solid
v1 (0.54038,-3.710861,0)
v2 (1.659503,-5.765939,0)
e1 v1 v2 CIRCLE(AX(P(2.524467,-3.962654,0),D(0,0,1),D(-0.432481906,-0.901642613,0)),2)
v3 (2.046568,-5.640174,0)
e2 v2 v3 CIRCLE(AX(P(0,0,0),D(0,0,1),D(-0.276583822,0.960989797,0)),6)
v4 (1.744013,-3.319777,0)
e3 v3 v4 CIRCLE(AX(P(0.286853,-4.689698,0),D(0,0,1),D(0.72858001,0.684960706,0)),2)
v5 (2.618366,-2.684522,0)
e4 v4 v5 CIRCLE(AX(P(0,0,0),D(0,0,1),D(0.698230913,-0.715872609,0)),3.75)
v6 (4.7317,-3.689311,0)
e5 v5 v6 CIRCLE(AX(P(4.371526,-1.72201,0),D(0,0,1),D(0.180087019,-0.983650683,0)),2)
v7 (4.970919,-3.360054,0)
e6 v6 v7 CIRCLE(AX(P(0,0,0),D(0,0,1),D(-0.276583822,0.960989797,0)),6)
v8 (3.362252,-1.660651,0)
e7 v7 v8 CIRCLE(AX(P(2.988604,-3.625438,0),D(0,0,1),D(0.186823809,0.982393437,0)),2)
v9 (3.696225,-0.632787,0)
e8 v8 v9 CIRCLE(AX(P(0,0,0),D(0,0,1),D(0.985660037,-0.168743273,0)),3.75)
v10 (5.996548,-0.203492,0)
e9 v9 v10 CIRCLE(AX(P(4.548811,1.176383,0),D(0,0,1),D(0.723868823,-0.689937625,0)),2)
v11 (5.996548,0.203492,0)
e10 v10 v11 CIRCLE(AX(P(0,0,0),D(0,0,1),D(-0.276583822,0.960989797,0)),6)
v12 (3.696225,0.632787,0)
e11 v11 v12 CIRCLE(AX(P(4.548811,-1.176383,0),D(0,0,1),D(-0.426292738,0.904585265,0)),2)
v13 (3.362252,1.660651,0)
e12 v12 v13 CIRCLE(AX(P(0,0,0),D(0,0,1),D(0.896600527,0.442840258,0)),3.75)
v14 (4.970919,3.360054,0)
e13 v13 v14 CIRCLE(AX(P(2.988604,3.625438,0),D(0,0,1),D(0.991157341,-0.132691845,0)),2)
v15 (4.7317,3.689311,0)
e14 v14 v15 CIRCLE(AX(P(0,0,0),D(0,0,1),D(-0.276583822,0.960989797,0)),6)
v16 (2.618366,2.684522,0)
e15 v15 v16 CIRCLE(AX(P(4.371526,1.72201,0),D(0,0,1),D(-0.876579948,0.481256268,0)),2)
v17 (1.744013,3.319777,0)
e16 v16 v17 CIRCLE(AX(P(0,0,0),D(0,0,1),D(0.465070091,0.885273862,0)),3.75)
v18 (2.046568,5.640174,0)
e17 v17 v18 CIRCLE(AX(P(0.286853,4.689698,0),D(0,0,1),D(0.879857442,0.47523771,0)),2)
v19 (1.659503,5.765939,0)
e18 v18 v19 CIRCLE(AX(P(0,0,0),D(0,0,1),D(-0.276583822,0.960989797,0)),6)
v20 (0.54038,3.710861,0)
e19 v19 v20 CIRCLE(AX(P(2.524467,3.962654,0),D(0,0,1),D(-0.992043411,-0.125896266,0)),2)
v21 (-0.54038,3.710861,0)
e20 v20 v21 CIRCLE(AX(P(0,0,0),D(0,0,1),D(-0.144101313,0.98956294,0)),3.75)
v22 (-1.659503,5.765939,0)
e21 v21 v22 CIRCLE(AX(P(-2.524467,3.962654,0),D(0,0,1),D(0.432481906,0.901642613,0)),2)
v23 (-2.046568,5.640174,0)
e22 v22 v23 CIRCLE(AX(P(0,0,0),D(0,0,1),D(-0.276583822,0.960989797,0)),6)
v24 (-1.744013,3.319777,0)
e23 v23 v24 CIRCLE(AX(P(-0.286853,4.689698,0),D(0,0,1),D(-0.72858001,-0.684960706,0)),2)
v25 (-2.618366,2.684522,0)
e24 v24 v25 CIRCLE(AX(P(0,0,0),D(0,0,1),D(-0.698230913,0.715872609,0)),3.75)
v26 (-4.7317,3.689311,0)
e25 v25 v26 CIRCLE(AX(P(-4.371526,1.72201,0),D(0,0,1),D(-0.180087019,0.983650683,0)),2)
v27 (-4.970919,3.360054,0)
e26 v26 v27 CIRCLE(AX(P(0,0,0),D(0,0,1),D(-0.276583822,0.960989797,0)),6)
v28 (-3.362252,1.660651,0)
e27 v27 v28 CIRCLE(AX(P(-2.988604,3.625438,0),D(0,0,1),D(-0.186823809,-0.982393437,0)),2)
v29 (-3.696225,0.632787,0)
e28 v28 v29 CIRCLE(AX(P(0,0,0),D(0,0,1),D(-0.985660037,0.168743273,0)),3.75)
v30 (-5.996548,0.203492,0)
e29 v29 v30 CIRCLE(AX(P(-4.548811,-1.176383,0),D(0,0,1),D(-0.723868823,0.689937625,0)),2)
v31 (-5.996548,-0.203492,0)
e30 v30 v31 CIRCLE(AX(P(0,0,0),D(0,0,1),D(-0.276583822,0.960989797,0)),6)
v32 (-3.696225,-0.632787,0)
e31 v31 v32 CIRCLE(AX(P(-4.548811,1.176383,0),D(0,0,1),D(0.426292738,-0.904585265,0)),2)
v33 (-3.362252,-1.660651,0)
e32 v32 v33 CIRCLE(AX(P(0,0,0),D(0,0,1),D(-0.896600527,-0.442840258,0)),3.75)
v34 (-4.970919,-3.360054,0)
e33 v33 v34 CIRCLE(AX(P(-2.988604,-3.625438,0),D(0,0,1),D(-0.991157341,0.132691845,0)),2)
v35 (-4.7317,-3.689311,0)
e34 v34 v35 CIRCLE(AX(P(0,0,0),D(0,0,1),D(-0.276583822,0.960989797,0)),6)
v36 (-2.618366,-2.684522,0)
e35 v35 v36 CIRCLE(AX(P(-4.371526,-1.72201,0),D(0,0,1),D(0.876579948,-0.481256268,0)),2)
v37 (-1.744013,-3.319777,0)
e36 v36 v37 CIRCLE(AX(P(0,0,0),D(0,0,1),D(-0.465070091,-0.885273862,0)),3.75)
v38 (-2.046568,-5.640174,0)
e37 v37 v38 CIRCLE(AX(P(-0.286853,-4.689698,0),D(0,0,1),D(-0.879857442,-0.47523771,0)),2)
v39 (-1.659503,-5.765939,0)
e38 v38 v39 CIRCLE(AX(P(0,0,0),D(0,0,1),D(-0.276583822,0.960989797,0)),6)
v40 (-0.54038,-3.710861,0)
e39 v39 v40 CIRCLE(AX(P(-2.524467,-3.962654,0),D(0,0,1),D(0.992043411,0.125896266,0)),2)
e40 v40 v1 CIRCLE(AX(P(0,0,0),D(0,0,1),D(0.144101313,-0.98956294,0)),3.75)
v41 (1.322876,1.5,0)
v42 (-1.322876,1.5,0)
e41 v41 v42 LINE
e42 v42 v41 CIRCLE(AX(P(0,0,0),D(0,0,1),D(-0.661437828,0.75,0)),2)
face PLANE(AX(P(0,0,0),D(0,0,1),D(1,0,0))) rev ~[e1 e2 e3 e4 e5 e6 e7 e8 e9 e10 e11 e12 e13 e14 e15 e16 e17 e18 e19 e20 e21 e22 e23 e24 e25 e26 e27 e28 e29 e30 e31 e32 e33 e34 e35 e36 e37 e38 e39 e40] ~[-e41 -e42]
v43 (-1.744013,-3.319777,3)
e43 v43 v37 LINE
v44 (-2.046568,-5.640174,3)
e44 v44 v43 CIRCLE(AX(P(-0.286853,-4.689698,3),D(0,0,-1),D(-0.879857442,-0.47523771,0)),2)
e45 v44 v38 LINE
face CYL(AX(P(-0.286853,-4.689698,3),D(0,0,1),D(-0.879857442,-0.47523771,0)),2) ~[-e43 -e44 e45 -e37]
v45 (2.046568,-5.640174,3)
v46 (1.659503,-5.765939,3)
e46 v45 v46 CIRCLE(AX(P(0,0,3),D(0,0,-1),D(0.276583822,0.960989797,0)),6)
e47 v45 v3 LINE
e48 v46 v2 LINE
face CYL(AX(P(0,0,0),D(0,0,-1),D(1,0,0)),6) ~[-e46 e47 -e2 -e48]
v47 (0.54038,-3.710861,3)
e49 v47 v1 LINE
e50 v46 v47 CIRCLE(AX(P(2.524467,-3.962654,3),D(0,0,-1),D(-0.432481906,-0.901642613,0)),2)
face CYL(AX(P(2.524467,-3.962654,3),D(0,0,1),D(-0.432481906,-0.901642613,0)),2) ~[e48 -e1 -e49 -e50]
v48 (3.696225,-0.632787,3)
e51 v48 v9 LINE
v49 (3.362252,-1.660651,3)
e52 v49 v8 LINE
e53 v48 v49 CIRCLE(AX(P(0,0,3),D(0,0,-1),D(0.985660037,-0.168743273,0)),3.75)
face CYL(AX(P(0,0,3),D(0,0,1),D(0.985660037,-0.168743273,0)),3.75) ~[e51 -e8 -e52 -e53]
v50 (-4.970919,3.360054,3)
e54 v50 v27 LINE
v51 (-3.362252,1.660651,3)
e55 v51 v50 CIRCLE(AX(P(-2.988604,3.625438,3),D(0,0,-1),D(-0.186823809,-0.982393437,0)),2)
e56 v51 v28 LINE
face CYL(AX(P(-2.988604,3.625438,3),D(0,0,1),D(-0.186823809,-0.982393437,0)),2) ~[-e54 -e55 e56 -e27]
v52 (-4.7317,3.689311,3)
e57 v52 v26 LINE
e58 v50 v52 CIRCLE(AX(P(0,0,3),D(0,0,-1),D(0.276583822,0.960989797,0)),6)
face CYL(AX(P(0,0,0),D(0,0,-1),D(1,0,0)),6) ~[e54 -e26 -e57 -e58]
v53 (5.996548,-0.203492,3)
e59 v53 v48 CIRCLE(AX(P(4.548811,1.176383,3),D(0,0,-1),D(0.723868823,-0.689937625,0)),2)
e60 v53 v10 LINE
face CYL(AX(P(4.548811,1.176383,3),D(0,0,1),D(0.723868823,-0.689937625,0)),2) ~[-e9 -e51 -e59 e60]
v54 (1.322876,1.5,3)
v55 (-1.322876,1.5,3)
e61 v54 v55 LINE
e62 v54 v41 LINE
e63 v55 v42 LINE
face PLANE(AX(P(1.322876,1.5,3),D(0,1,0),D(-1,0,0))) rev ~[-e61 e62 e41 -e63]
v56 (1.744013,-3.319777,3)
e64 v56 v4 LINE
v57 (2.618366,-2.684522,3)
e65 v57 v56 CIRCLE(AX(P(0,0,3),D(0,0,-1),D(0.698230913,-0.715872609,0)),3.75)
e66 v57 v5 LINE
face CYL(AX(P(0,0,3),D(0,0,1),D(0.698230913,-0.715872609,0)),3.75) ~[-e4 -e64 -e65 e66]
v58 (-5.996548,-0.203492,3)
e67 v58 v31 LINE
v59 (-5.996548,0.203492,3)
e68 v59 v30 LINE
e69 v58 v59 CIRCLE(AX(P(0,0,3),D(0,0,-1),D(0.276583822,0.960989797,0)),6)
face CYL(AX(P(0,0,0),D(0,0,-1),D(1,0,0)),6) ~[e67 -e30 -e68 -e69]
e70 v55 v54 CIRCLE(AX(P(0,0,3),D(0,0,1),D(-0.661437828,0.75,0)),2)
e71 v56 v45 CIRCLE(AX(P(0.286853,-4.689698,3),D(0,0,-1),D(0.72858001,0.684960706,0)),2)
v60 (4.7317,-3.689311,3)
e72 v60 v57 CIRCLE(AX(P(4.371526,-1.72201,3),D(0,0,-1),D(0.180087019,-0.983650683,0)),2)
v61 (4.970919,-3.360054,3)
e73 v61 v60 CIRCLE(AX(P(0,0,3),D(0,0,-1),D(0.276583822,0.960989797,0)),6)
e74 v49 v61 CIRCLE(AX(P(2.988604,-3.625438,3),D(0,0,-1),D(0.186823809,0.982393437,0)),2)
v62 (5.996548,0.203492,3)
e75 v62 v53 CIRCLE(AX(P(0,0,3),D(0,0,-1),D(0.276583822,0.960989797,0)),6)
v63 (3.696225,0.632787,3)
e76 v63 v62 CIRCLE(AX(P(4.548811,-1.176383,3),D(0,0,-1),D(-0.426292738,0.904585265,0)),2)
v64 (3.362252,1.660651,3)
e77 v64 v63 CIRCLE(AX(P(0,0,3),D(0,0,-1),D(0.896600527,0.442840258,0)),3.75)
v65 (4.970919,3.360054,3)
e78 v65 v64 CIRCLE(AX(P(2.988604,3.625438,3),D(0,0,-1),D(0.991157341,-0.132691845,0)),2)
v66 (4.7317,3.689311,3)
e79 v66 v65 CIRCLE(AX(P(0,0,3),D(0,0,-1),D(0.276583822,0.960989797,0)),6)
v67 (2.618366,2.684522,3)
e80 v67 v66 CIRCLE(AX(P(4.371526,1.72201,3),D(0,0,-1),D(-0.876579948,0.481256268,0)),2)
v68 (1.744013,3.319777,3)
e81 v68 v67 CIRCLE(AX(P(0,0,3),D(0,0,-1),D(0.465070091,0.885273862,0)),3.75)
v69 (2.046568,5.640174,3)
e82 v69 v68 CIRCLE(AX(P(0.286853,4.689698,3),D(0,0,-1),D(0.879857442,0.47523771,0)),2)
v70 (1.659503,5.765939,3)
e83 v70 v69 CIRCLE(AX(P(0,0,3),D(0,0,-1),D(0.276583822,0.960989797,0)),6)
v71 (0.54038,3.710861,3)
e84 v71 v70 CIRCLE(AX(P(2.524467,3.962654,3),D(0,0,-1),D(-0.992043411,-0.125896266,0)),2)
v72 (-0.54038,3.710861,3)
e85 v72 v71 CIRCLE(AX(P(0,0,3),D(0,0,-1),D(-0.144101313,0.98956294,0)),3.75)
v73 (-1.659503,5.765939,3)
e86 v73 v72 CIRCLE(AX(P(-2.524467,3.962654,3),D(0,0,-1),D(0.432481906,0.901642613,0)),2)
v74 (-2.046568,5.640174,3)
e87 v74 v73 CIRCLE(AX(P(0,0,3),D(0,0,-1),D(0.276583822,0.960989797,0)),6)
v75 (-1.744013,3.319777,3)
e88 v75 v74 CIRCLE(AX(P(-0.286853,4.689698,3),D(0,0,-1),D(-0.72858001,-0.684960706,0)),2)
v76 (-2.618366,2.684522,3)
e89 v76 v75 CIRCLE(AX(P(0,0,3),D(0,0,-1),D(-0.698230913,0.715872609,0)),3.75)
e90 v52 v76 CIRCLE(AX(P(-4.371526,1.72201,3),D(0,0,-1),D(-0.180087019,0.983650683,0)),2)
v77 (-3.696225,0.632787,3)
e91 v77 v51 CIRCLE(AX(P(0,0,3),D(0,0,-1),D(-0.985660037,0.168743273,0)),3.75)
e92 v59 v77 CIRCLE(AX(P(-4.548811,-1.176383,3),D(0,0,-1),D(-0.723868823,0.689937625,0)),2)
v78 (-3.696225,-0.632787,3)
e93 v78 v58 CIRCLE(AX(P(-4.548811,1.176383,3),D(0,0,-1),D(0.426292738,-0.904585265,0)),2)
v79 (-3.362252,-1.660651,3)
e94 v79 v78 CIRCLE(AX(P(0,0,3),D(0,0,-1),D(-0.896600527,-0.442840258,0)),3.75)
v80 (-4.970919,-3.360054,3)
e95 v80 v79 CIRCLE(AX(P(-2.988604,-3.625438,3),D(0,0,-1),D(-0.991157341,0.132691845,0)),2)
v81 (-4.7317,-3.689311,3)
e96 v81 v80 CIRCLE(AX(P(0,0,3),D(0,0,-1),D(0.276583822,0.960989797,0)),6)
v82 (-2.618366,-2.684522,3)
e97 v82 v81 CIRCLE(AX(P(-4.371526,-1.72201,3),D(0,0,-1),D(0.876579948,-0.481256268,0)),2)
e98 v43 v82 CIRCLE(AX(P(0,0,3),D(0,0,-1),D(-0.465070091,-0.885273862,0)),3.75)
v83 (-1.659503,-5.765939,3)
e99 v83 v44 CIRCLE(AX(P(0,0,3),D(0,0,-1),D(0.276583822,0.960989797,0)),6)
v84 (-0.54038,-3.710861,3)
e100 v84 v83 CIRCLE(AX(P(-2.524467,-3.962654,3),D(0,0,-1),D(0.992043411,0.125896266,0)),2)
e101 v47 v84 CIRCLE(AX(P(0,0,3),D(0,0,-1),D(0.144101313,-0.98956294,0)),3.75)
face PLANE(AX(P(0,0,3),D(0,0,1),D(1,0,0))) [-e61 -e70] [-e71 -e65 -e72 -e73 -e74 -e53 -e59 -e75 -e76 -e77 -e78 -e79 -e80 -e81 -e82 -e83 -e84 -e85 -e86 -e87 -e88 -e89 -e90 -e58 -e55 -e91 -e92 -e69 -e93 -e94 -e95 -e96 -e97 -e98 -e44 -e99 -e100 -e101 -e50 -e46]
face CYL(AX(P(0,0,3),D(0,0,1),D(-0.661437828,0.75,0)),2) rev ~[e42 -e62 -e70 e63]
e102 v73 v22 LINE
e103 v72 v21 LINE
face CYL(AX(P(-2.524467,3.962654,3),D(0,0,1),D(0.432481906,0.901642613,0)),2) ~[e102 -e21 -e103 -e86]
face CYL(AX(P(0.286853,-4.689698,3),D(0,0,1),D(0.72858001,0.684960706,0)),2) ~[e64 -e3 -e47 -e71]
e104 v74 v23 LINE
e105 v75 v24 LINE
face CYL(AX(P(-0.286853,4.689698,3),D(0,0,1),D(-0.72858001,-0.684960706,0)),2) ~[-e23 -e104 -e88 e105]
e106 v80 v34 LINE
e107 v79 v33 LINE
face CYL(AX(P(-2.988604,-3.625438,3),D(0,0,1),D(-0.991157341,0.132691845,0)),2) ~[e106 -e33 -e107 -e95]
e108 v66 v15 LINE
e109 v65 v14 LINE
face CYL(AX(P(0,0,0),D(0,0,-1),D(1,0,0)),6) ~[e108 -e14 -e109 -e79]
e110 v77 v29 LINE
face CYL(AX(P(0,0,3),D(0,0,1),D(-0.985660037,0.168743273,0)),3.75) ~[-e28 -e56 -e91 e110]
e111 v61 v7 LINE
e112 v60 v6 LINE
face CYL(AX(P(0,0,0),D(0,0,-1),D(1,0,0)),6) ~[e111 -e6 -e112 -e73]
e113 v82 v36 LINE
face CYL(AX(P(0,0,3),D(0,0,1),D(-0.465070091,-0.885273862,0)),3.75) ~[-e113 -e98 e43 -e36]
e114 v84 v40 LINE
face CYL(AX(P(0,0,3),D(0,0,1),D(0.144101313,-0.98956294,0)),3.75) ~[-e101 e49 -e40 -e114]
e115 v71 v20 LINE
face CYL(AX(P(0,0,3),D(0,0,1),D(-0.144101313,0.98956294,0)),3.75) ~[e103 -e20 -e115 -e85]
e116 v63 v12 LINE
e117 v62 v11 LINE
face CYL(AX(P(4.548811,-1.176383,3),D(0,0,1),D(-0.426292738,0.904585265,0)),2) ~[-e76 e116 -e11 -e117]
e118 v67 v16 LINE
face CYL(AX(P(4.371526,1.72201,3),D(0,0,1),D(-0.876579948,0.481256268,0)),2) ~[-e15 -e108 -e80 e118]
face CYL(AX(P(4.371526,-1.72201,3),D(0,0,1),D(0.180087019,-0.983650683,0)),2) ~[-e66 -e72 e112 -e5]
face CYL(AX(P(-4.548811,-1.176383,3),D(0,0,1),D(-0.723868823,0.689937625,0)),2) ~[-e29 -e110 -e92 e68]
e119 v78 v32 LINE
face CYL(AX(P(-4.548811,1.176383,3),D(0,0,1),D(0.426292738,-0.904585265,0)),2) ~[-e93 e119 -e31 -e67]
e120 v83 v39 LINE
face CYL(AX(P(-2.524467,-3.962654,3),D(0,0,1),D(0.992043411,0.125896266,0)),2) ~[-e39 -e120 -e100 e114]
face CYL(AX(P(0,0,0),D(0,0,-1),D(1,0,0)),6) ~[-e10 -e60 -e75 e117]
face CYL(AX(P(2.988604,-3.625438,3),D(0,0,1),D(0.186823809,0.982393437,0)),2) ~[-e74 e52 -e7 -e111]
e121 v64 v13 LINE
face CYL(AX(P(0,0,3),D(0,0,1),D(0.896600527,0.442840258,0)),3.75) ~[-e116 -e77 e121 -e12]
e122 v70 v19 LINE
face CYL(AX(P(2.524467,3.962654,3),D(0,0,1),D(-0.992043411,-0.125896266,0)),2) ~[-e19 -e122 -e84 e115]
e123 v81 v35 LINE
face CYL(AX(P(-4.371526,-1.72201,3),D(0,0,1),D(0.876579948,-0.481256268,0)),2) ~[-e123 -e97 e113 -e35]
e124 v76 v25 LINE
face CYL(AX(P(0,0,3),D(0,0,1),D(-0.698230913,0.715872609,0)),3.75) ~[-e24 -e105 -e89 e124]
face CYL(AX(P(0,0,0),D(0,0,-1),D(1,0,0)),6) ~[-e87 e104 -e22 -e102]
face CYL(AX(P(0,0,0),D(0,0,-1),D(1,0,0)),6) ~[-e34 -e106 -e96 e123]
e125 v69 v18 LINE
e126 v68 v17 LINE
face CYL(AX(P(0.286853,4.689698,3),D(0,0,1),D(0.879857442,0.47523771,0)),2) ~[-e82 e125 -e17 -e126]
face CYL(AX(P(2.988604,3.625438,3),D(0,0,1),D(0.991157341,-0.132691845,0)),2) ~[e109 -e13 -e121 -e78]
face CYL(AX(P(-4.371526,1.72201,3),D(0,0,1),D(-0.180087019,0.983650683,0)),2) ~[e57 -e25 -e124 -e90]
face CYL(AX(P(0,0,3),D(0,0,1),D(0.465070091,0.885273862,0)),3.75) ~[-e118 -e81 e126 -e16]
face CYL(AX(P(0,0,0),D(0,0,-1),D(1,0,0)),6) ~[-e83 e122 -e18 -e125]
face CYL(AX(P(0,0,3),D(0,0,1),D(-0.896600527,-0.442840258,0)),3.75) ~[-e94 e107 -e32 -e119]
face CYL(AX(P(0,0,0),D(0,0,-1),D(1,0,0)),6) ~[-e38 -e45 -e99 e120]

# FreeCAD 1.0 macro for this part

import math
import FreeCAD as App
import Part
import Sketcher
from FreeCAD import Vector
Q = App.Units.Quantity

doc = App.newDocument("Part")
body = doc.addObject("PartDesign::Body", "Body")

# Sketch on XY plane
sketch1 = doc.addObject("Sketcher::SketchObject", "Sketch")
body.addObject(sketch1)
sketch1.AttachmentSupport = (doc.XY_Plane, [""])
sketch1.MapMode = "FlatFace"
sketch1.addGeometry(Part.Circle(Vector(0, 0, 0), Vector(0, 0, 1), 6), False)
sketch1.addConstraint(Sketcher.Constraint("Coincident", 0, 3, -1, 1))
sketch1.addConstraint(Sketcher.Constraint("Diameter", 0, Q("12 mm")))
pad1 = doc.addObject("PartDesign::Pad", "Pad")
body.addObject(pad1)
pad1.Profile = sketch1
pad1.Length = 3

# Sketch on XY plane
sketch2 = doc.addObject("Sketcher::SketchObject", "Sketch001")
body.addObject(sketch2)
sketch2.AttachmentSupport = (doc.XY_Plane, [""])
sketch2.MapMode = "FlatFace"
sketch2.AttachmentOffset = App.Placement(Vector(0, 0, 3), App.Rotation())
sketch2.addGeometry(Part.ArcOfCircle(Part.Circle(Vector(-2.524467, 3.962654, 0), Vector(0, 0, 1), 2), math.radians(-7.232517), math.radians(64.374828)), False)
sketch2.addGeometry(Part.ArcOfCircle(Part.Circle(Vector(0, 0, 0), Vector(0, 0, 1), 3.75), math.radians(81.714758), math.radians(98.285242)), False)
sketch2.addGeometry(Part.ArcOfCircle(Part.Circle(Vector(2.524467, 3.962654, 0), Vector(0, 0, 1), 2), math.radians(115.625172), math.radians(187.232517)), False)
sketch2.addGeometry(Part.ArcOfCircle(Part.Circle(Vector(0, 0, 0), Vector(0, 0, 1), 6), math.radians(73.943578), math.radians(106.056422)), False)
sketch2.addConstraint(Sketcher.Constraint("Coincident", 0, 1, 1, 2))
sketch2.addConstraint(Sketcher.Constraint("Coincident", 1, 1, 2, 2))
sketch2.addConstraint(Sketcher.Constraint("Coincident", 2, 1, 3, 1))
sketch2.addConstraint(Sketcher.Constraint("Coincident", 3, 2, 0, 2))
sketch2.addConstraint(Sketcher.Constraint("Coincident", 1, 3, -1, 1))
sketch2.addConstraint(Sketcher.Constraint("Coincident", 3, 3, -1, 1))
sketch2.addConstraint(Sketcher.Constraint("Equal", 0, 2))
sketch2.addConstraint(Sketcher.Constraint("Symmetric", 0, 3, 2, 3, -2))
sketch2.addConstraint(Sketcher.Constraint("Radius", 0, Q("2 mm")))
sketch2.addConstraint(Sketcher.Constraint("Radius", 3, Q("6 mm")))
sketch2.addConstraint(Sketcher.Constraint("Radius", 1, Q("3.75 mm")))
sketch2.addConstraint(Sketcher.Constraint("DistanceX", 0, 1, -1, 1, Q("0.54038 mm")))
sketch2.addConstraint(Sketcher.Constraint("DistanceY", -1, 1, 2, 1, Q("5.765939 mm")))
pocket1 = doc.addObject("PartDesign::Pocket", "Pocket")
body.addObject(pocket1)
pocket1.Profile = sketch2
pocket1.Type = "ThroughAll"
doc.recompute()

polarpattern = doc.addObject("PartDesign::PolarPattern", "PolarPattern")
body.addObject(polarpattern)
polarpattern.Originals = [pocket1]
polarpattern.Axis = (doc.Z_Axis, [""])
polarpattern.Angle = 360
polarpattern.Occurrences = 10
body.Tip = polarpattern

# Sketch on XY plane
sketch3 = doc.addObject("Sketcher::SketchObject", "Sketch002")
body.addObject(sketch3)
sketch3.AttachmentSupport = (doc.XY_Plane, [""])
sketch3.MapMode = "FlatFace"
sketch3.AttachmentOffset = App.Placement(Vector(0, 0, 3), App.Rotation())
sketch3.addGeometry(Part.LineSegment(Vector(1.322876, 1.5, 0), Vector(-1.322876, 1.5, 0)), False)
sketch3.addGeometry(Part.ArcOfCircle(Part.Circle(Vector(0, 0, 0), Vector(0, 0, 1), 2), math.radians(131.409622), math.radians(408.590378)), False)
sketch3.addConstraint(Sketcher.Constraint("Coincident", 0, 1, 1, 2))
sketch3.addConstraint(Sketcher.Constraint("Coincident", 1, 1, 0, 2))
sketch3.addConstraint(Sketcher.Constraint("Horizontal", 0))
sketch3.addConstraint(Sketcher.Constraint("Coincident", 1, 3, -1, 1))
sketch3.addConstraint(Sketcher.Constraint("Radius", 1, Q("2 mm")))
sketch3.addConstraint(Sketcher.Constraint("DistanceY", -1, 1, 0, 1, Q("1.5 mm")))
pocket2 = doc.addObject("PartDesign::Pocket", "Pocket001")
body.addObject(pocket2)
pocket2.Profile = sketch3
pocket2.Type = "ThroughAll"

doc.recompute()
